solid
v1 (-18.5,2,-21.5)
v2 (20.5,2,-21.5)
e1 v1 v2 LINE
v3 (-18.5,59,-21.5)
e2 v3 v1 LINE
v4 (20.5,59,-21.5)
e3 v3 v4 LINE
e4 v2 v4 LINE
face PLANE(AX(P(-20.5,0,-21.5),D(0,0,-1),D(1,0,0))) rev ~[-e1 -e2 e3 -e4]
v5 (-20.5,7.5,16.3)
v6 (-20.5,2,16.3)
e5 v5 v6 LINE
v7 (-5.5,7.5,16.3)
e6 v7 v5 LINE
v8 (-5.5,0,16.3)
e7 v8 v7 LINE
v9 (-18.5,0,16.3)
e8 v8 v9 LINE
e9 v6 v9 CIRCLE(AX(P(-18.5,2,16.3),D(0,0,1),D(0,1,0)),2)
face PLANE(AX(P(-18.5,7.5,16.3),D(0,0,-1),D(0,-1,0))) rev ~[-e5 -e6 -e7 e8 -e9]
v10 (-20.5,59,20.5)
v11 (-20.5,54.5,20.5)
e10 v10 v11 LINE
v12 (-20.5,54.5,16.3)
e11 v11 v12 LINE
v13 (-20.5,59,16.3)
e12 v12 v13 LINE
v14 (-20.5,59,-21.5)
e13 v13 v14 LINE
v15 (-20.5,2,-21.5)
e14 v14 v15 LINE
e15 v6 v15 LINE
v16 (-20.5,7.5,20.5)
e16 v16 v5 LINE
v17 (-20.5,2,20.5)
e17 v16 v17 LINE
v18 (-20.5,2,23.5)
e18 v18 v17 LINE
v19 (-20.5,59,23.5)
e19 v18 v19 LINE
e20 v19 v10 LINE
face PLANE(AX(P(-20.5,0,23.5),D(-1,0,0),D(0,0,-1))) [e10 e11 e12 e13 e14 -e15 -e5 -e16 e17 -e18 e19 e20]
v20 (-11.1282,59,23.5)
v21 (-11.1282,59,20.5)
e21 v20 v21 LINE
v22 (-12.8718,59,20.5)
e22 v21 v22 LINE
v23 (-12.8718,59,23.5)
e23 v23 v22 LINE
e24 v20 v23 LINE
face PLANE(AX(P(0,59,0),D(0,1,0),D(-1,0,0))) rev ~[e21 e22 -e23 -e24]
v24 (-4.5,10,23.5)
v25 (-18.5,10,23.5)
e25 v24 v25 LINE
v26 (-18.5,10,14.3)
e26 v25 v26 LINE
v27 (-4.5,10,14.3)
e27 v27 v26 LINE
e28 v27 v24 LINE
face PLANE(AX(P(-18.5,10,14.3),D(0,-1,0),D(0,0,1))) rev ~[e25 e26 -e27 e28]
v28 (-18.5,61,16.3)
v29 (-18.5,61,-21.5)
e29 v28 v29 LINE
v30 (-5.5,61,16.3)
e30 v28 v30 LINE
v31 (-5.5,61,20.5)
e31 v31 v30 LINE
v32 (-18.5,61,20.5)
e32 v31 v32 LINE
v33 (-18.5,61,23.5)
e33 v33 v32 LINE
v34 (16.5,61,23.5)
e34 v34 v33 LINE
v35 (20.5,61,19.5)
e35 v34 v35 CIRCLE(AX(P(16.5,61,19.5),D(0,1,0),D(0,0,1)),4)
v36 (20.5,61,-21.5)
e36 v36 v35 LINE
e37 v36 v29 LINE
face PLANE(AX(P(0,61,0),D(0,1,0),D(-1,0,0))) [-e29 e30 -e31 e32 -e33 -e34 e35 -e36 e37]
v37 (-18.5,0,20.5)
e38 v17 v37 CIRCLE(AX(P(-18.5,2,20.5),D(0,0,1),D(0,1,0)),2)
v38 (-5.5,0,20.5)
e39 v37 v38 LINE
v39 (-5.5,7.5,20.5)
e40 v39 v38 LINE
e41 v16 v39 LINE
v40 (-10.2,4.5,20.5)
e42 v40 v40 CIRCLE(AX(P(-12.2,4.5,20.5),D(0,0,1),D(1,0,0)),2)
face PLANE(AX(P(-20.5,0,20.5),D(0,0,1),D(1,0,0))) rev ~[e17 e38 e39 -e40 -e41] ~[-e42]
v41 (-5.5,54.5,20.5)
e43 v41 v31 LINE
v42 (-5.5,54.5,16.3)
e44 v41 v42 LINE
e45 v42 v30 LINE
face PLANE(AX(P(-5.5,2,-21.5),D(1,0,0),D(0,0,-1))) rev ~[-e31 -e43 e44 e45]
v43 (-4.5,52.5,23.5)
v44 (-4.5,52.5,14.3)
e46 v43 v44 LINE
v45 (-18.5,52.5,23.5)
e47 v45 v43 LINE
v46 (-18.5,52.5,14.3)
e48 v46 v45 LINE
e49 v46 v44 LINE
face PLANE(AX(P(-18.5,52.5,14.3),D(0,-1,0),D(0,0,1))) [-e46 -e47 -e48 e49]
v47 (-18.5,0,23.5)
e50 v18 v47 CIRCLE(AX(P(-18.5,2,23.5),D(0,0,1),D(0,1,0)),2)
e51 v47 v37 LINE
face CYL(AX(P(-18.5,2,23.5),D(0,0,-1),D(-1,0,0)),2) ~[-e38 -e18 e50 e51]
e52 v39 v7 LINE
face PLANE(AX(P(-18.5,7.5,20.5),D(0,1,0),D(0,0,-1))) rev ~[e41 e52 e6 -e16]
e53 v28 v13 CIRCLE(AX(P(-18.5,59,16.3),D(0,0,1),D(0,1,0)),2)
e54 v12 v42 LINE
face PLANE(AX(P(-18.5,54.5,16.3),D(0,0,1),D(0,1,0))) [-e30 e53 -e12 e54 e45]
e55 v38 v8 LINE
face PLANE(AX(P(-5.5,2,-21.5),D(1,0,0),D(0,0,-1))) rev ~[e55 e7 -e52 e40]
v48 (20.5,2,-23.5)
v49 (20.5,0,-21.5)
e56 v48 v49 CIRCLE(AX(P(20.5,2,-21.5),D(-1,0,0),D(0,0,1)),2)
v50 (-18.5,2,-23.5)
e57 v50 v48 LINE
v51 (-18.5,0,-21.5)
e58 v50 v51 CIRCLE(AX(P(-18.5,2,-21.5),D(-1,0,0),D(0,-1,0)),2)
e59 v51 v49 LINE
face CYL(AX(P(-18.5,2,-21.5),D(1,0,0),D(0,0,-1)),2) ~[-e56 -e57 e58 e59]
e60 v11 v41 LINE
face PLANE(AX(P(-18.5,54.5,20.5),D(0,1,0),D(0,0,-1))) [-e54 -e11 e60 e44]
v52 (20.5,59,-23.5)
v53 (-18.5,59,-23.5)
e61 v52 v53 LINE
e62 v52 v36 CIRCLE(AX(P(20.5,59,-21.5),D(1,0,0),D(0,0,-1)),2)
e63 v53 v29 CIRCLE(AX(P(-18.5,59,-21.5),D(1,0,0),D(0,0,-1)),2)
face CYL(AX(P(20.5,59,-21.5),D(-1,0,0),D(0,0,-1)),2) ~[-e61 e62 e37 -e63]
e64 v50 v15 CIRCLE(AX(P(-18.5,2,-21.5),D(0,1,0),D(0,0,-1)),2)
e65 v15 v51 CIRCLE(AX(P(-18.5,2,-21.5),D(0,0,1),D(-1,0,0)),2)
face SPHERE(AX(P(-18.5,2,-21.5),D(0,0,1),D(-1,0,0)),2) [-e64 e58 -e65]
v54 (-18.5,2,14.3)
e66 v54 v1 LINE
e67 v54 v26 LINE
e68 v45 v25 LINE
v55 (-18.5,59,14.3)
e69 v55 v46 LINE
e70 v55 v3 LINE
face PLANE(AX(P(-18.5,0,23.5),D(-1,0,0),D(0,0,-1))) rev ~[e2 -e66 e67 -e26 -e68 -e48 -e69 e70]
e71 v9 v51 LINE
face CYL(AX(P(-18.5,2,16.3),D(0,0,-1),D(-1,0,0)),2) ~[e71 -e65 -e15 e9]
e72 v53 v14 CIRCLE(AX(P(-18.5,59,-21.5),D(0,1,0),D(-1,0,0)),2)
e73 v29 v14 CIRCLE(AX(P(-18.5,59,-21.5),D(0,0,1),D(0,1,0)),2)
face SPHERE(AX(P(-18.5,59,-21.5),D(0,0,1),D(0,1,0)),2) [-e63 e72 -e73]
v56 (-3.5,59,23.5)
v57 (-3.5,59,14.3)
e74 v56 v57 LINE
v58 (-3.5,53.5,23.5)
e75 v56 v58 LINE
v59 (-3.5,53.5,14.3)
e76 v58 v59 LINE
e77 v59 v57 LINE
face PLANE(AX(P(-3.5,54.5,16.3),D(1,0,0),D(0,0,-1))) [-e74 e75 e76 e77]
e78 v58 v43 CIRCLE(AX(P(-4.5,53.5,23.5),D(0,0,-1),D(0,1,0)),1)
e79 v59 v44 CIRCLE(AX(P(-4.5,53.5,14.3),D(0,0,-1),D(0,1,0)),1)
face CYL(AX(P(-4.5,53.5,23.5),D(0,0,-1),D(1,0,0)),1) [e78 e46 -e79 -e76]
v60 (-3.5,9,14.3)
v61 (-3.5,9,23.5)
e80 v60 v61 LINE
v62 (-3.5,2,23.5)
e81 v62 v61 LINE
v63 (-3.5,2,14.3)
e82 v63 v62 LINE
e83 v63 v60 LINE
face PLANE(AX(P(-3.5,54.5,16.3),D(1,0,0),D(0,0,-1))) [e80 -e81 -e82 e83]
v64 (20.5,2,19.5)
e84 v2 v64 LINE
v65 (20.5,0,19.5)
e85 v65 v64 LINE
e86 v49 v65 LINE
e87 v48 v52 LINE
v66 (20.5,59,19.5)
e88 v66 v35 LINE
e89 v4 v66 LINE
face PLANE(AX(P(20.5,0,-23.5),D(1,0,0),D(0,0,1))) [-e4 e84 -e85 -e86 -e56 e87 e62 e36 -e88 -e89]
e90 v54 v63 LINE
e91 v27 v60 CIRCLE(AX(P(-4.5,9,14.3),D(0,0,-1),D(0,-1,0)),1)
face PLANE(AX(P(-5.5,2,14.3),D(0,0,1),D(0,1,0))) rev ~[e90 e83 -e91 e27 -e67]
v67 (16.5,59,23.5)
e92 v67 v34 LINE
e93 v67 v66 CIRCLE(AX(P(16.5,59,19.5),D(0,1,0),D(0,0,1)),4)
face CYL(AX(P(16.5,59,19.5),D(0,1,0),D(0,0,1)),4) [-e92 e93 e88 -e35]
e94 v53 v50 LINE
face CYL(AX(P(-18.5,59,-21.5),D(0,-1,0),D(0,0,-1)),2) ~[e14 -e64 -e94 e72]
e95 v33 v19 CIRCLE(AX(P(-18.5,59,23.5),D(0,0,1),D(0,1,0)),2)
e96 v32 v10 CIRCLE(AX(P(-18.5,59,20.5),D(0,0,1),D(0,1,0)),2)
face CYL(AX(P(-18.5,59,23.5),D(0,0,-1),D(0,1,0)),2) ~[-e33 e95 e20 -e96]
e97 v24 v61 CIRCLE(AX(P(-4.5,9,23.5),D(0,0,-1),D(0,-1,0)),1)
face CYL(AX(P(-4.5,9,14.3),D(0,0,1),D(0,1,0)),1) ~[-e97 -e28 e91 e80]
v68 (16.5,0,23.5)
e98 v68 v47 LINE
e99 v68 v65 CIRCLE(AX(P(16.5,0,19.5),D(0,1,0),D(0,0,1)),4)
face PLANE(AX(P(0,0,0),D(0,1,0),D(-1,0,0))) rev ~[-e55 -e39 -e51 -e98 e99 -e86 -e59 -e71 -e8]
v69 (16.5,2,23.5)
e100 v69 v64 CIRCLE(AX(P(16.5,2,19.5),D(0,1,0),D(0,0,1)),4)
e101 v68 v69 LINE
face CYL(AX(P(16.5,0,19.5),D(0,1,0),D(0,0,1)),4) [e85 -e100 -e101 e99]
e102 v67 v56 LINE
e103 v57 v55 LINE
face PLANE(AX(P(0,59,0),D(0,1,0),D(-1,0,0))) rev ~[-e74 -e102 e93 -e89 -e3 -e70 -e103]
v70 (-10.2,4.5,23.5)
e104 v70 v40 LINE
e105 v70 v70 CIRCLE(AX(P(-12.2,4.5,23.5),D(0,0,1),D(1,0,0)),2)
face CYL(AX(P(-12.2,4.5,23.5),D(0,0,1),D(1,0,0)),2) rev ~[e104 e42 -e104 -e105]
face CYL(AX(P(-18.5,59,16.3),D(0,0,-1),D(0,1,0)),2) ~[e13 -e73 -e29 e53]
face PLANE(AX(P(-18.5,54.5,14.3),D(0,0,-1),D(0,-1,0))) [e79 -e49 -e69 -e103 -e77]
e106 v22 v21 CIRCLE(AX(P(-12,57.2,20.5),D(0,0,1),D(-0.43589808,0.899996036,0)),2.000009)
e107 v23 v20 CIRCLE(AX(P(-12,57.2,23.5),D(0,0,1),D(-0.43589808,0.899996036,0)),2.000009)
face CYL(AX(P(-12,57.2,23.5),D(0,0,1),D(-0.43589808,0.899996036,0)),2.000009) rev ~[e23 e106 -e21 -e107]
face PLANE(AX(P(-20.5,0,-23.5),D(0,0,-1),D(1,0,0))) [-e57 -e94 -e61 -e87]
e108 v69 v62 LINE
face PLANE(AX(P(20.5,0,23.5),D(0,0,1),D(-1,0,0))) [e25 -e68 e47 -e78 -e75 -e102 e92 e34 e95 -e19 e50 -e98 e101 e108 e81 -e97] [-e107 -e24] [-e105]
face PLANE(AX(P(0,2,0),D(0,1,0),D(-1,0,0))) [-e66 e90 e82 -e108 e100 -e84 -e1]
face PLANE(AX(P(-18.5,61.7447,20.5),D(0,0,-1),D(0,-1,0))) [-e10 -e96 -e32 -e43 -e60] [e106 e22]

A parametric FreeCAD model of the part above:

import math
import FreeCAD as App
import Part
import Sketcher
from FreeCAD import Vector
Q = App.Units.Quantity


def edges_at(feature, points):
    """Names of the edges that pass closest to the given points."""
    edges = feature.Shape.Edges
    near = lambda p: min(range(len(edges)), key=lambda i: edges[i].distToShape(Part.Vertex(*p))[0])
    return sorted({f"Edge{near(p) + 1}" for p in points})


def faces_at(feature, points):
    """Names of the faces that lie closest to the given points."""
    faces = feature.Shape.Faces
    near = lambda p: min(range(len(faces)), key=lambda i: faces[i].distToShape(Part.Vertex(*p))[0])
    return sorted({f"Face{near(p) + 1}" for p in points})


def add_polygon(sketch, points):
    """Adds a closed chain of lines whose ends are joined by coincident constraints."""
    first, n = sketch.GeometryCount, len(points)
    for a, b in zip(points, points[1:] + points[:1]):
        sketch.addGeometry(Part.LineSegment(App.Vector(*a, 0), App.Vector(*b, 0)), False)
    for i in range(n):
        sketch.addConstraint(Sketcher.Constraint("Coincident", first + i, 2, first + (i + 1) % n, 1))

doc = App.newDocument("Part")
body = doc.addObject("PartDesign::Body", "Body")

# Sketch on XZ plane
sketch1 = doc.addObject("Sketcher::SketchObject", "Sketch")
body.addObject(sketch1)
sketch1.AttachmentSupport = (doc.XZ_Plane, [""])
sketch1.MapMode = "FlatFace"
add_polygon(sketch1, [(-20, 24), (20, 24), (20, -24), (-20, -24)])  # lines 0-3
sketch1.addConstraint([
    Sketcher.Constraint("Horizontal", 0),
    Sketcher.Constraint("Vertical", 1),
    Sketcher.Constraint("Horizontal", 2),
    Sketcher.Constraint("Vertical", 3),
    Sketcher.Constraint("Symmetric", 0, 2, 2, 2, -1, 1),
    Sketcher.Constraint("DistanceX", 0, 1, 0, 2, Q("41 mm")),
    Sketcher.Constraint("DistanceY", 1, 2, 1, 1, Q("47 mm")),
])
pad1 = doc.addObject("PartDesign::Pad", "Pad")
body.addObject(pad1)
pad1.Profile = sketch1
pad1.Length = 61
pad1.Reversed = True
doc.recompute()

thickness = doc.addObject("PartDesign::Thickness", "Thickness")
body.addObject(thickness)
thickness.Base = (pad1, faces_at(pad1, [(6.833, 20.333, 23.5), (20.5, 20.333, -7.833)]))
thickness.Value = 2
thickness.Reversed = True
thickness.Join = "Intersection"

# Sketch on XY plane
sketch2 = doc.addObject("Sketcher::SketchObject", "Sketch001")
body.addObject(sketch2)
sketch2.AttachmentSupport = (doc.XY_Plane, [""])
sketch2.MapMode = "FlatFace"
sketch2.AttachmentOffset = App.Placement(Vector(0, 0, 23.5), App.Rotation())
sketch2.addGeometry(Part.LineSegment(Vector(-18.5, 59, 0), Vector(-18.5, 54.5, 0)), False)  # 0
sketch2.addGeometry(Part.LineSegment(Vector(-18.5, 54.5, 0), Vector(-5.5, 54.5, 0)), False)  # 1
sketch2.addGeometry(Part.LineSegment(Vector(-5.5, 54.5, 0), Vector(-5.5, 59, 0)), False)  # 2
sketch2.addGeometry(Part.LineSegment(Vector(-5.5, 59, 0), Vector(-11.1, 59, 0)), False)  # 3
sketch2.addGeometry(Part.ArcOfCircle(Part.Circle(Vector(-12, 57.2, 0), Vector(0, 0, 1), 2), math.radians(116), math.radians(424)), False)  # 4
sketch2.addGeometry(Part.LineSegment(Vector(-12.9, 59, 0), Vector(-18.5, 59, 0)), False)  # 5
add_polygon(sketch2, [(-18.5, 7.5), (-18.5, 2), (-5.5, 2), (-5.5, 7.5)])  # lines 6-9
sketch2.addGeometry(Part.Circle(Vector(-12.2, 4.5, 0), Vector(0, 0, 1), 2), False)  # 10
sketch2.addConstraint([
    Sketcher.Constraint("Coincident", 0, 2, 1, 1),
    Sketcher.Constraint("Coincident", 1, 2, 2, 1),
    Sketcher.Constraint("Coincident", 2, 2, 3, 1),
    Sketcher.Constraint("Coincident", 3, 2, 4, 2),
    Sketcher.Constraint("Coincident", 4, 1, 5, 1),
    Sketcher.Constraint("Coincident", 5, 2, 0, 1),
    Sketcher.Constraint("Vertical", 0),
    Sketcher.Constraint("Horizontal", 1),
    Sketcher.Constraint("Vertical", 2),
    Sketcher.Constraint("Horizontal", 3),
    Sketcher.Constraint("Horizontal", 5),
    Sketcher.Constraint("Vertical", 6),
    Sketcher.Constraint("Horizontal", 7),
    Sketcher.Constraint("Vertical", 8),
    Sketcher.Constraint("Horizontal", 9),
    Sketcher.Constraint("Equal", 4, 10),
    Sketcher.Constraint("Horizontal", 3, 2, 4, 1),
    Sketcher.Constraint("Vertical", 5, 2, 6, 2),
    Sketcher.Constraint("Vertical", 2, 2, 7, 2),
    Sketcher.Constraint("Equal", 3, 5),
    Sketcher.Constraint("Diameter", 10, Q("4 mm")),
    Sketcher.Constraint("DistanceX", 1, 1, 1, 2, Q("13 mm")),
    Sketcher.Constraint("DistanceY", 0, 2, 0, 1, Q("4.5 mm")),
    Sketcher.Constraint("DistanceY", 6, 2, 6, 1, Q("5.5 mm")),
    Sketcher.Constraint("DistanceY", -1, 1, 10, 3, Q("4.5 mm")),
    Sketcher.Constraint("DistanceX", 1, 2, -1, 1, Q("5.5 mm")),
    Sketcher.Constraint("DistanceY", -1, 1, 2, 2, Q("59 mm")),
    Sketcher.Constraint("DistanceY", -1, 1, 6, 2, Q("2 mm")),
    Sketcher.Constraint("DistanceY", -1, 1, 4, 3, Q("57.2 mm")),
    Sketcher.Constraint("DistanceX", 10, 3, -1, 1, Q("12.2 mm")),
])
pad2 = doc.addObject("PartDesign::Pad", "Pad001")
body.addObject(pad2)
pad2.Profile = sketch2
pad2.Length = 3
pad2.Reversed = True
doc.recompute()

fillet = doc.addObject("PartDesign::Fillet", "Fillet")
body.addObject(fillet)
fillet.Base = (pad2, edges_at(pad2, [(20.5, 60, 23.5), (20.5, 1, 23.5)]))
fillet.Radius = 4

# Sketch on YZ plane
sketch3 = doc.addObject("Sketcher::SketchObject", "Sketch002")
body.addObject(sketch3)
sketch3.AttachmentSupport = (doc.YZ_Plane, [""])
sketch3.MapMode = "FlatFace"
sketch3.AttachmentOffset = App.Placement(Vector(0, 0, -18.5), App.Rotation())
add_polygon(sketch3, [(7.5, 16.3), (7.5, 20.5), (0, 20.5), (0, 16.3)])  # lines 0-3
add_polygon(sketch3, [(61.7, 20.5), (54.5, 20.5), (54.5, 16.3), (61.7, 16.3)])  # lines 4-7
sketch3.addConstraint([
    Sketcher.Constraint("Vertical", 0),
    Sketcher.Constraint("Horizontal", 1),
    Sketcher.Constraint("Vertical", 2),
    Sketcher.Constraint("Horizontal", 3),
    Sketcher.Constraint("Horizontal", 4),
    Sketcher.Constraint("Vertical", 5),
    Sketcher.Constraint("Horizontal", 6),
    Sketcher.Constraint("Vertical", 7),
    Sketcher.Constraint("PointOnObject", 1, 2, -2),
    Sketcher.Constraint("Horizontal", 1, 2, 4, 2),
    Sketcher.Constraint("Horizontal", 3, 2, 5, 2),
    Sketcher.Constraint("DistanceY", 0, 1, 0, 2, Q("4.2 mm")),
    Sketcher.Constraint("DistanceX", 1, 2, 1, 1, Q("7.5 mm")),
    Sketcher.Constraint("DistanceX", 0, 2, 4, 2, Q("47 mm")),
    Sketcher.Constraint("DistanceY", -1, 1, 0, 2, Q("20.5 mm")),
    Sketcher.Constraint("DistanceX", 4, 2, 4, 1, Q("7.2447 mm")),
])
pocket1 = doc.addObject("PartDesign::Pocket", "Pocket")
body.addObject(pocket1)
pocket1.Profile = sketch3
pocket1.Type = "TwoLengths"
pocket1.Length = 13
pocket1.Length2 = 2
pocket1.Reversed = True

# Sketch on YZ plane
sketch4 = doc.addObject("Sketcher::SketchObject", "Sketch003")
body.addObject(sketch4)
sketch4.AttachmentSupport = (doc.YZ_Plane, [""])
sketch4.MapMode = "FlatFace"
sketch4.AttachmentOffset = App.Placement(Vector(0, 0, -18.5), App.Rotation())
add_polygon(sketch4, [(0, 16.3), (0, 14.3), (10, 14.3), (10, 23.5), (7.5, 23.5), (7.5, 16.3)])  # lines 0-5
add_polygon(sketch4, [(54.5, 23.5), (52.5, 23.5), (52.5, 14.3), (61, 14.3), (61, 16.3), (54.5, 16.3)])  # lines 6-11
sketch4.addConstraint([
    Sketcher.Constraint("Vertical", 0),
    Sketcher.Constraint("Horizontal", 1),
    Sketcher.Constraint("Vertical", 2),
    Sketcher.Constraint("Horizontal", 3),
    Sketcher.Constraint("Vertical", 4),
    Sketcher.Constraint("Horizontal", 5),
    Sketcher.Constraint("Horizontal", 6),
    Sketcher.Constraint("Vertical", 7),
    Sketcher.Constraint("Horizontal", 8),
    Sketcher.Constraint("Vertical", 9),
    Sketcher.Constraint("Horizontal", 10),
    Sketcher.Constraint("Vertical", 11),
    Sketcher.Constraint("PointOnObject", 0, 2, -2),
    Sketcher.Constraint("Horizontal", 3, 2, 6, 2),
    Sketcher.Constraint("Horizontal", 1, 2, 7, 2),
    Sketcher.Constraint("Horizontal", 5, 2, 9, 2),
    Sketcher.Constraint("Equal", 6, 0),
    Sketcher.Constraint("DistanceX", 1, 1, 1, 2, Q("10 mm")),
    Sketcher.Constraint("DistanceX", 6, 2, 6, 1, Q("2 mm")),
    Sketcher.Constraint("DistanceY", 2, 1, 2, 2, Q("9.2 mm")),
    Sketcher.Constraint("DistanceX", 3, 2, 3, 1, Q("2.5 mm")),
    Sketcher.Constraint("DistanceX", 8, 1, 8, 2, Q("8.5 mm")),
    Sketcher.Constraint("DistanceX", -1, 1, 8, 2, Q("61 mm")),
    Sketcher.Constraint("DistanceY", -1, 1, 0, 2, Q("14.3 mm")),
])
pad3 = doc.addObject("PartDesign::Pad", "Pad002")
body.addObject(pad3)
pad3.Profile = sketch4
pad3.Length = 13

# Sketch on YZ plane
sketch5 = doc.addObject("Sketcher::SketchObject", "Sketch004")
body.addObject(sketch5)
sketch5.AttachmentSupport = (doc.YZ_Plane, [""])
sketch5.MapMode = "FlatFace"
sketch5.AttachmentOffset = App.Placement(Vector(0, 0, -5.5), App.Rotation())
add_polygon(sketch5, [(2, 14), (10, 14), (10, 24), (2, 24)])  # lines 0-3
add_polygon(sketch5, [(59, 24), (52, 24), (52, 14), (59, 14)])  # lines 4-7
sketch5.addConstraint([
    Sketcher.Constraint("Horizontal", 0),
    Sketcher.Constraint("Vertical", 1),
    Sketcher.Constraint("Horizontal", 2),
    Sketcher.Constraint("Vertical", 3),
    Sketcher.Constraint("Horizontal", 4),
    Sketcher.Constraint("Vertical", 5),
    Sketcher.Constraint("Horizontal", 6),
    Sketcher.Constraint("Vertical", 7),
    Sketcher.Constraint("Horizontal", 2, 2, 4, 2),
    Sketcher.Constraint("Horizontal", 3, 2, 5, 2),
    Sketcher.Constraint("DistanceX", 0, 1, 0, 2, Q("8 mm")),
    Sketcher.Constraint("DistanceX", 4, 2, 4, 1, Q("6.5 mm")),
    Sketcher.Constraint("DistanceY", 1, 1, 1, 2, Q("9.2 mm")),
    Sketcher.Constraint("DistanceX", -1, 1, 0, 2, Q("10 mm")),
    Sketcher.Constraint("DistanceX", -1, 1, 6, 2, Q("59 mm")),
    Sketcher.Constraint("DistanceY", -1, 1, 0, 2, Q("14.3 mm")),
])
pad4 = doc.addObject("PartDesign::Pad", "Pad003")
body.addObject(pad4)
pad4.Profile = sketch5
pad4.Length = 2
doc.recompute()

fillet2 = doc.addObject("PartDesign::Fillet", "Fillet001")
body.addObject(fillet2)
fillet2.Base = (pad4, edges_at(pad4, [(-20.5, 61, 22), (-20.5, 0, 22)]))
fillet2.Radius = 2
doc.recompute()

fillet3 = doc.addObject("PartDesign::Fillet", "Fillet002")
body.addObject(fillet3)
fillet3.Base = (fillet2, edges_at(fillet2, [(-20.5, 61, -3.6), (-20.5, 0, -3.6)]))
fillet3.Radius = 2
doc.recompute()

fillet4 = doc.addObject("PartDesign::Fillet", "Fillet003")
body.addObject(fillet4)
fillet4.Base = (fillet3, edges_at(fillet3, [
    (-19.914, 60.414, -23.5),
    (1, 61, -23.5),
    (-19.914, 0.586, -23.5),
    (1, 0, -23.5),
    (-20.5, 30.5, -23.5),
]))
fillet4.Radius = 2
doc.recompute()

fillet5 = doc.addObject("PartDesign::Fillet", "Fillet004")
body.addObject(fillet5)
fillet5.Base = (fillet4, edges_at(fillet4, [(-3.5, 52.5, 18.9), (-3.5, 10, 18.9)]))
fillet5.Radius = 1

doc.recompute()
